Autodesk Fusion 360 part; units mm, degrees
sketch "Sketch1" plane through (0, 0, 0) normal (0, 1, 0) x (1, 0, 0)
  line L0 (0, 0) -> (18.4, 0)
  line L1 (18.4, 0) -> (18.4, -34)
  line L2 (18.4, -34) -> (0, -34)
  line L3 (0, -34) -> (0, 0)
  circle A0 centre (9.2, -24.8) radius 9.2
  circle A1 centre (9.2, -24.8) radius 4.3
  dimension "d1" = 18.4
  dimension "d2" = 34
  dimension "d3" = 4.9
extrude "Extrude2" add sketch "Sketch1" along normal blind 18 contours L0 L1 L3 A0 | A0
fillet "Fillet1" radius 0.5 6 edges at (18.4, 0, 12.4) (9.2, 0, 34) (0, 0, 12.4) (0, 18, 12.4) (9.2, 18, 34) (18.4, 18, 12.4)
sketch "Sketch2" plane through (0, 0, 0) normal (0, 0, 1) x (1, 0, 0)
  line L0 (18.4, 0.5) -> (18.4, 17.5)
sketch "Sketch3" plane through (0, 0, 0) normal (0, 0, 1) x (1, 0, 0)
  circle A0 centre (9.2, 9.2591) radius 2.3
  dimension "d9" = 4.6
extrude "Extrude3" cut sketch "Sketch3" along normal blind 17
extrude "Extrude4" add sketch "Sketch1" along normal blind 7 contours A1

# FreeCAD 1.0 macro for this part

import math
import FreeCAD as App
import Part
import Sketcher

V = App.Vector


def edges_at(feature, points):
    """Names of the edges that pass closest to the given points."""
    edges = feature.Shape.Edges
    near = lambda p: min(range(len(edges)), key=lambda i: edges[i].distToShape(Part.Vertex(*p))[0])
    return sorted({f"Edge{near(p) + 1}" for p in points})

doc = App.newDocument("Part")
body = doc.addObject("PartDesign::Body", "Body")

# Sketch on XZ plane
sketch1 = doc.addObject("Sketcher::SketchObject", "Sketch")
body.addObject(sketch1)
sketch1.AttachmentSupport = (doc.XZ_Plane, [""])
sketch1.MapMode = "FlatFace"
sketch1.addGeometry([
    Part.LineSegment(V(18.4, 0, 0), V(0, 0, 0)),  # 0
    Part.LineSegment(V(0, 0, 0), V(0, 24.8, 0)),  # 1
    Part.ArcOfCircle(Part.Circle(V(9.2, 24.8, 0), V(0, 0, 1), 9.2), math.radians(0), math.radians(180)),  # 2
    Part.LineSegment(V(18.4, 24.8, 0), V(18.4, 0, 0)),  # 3
    Part.Circle(V(9.2, 24.8, 0), V(0, 0, 1), 4.3),  # 4
], False)
sketch1.addConstraint([
    Sketcher.Constraint("Coincident", 0, 2, 1, 1),
    Sketcher.Constraint("Tangent", 1, 2, 2, 2),
    Sketcher.Constraint("Tangent", 2, 1, 3, 1),
    Sketcher.Constraint("Coincident", 3, 2, 0, 1),
    Sketcher.Constraint("Horizontal", 0),
    Sketcher.Constraint("Vertical", 1),
    Sketcher.Constraint("Vertical", 3),
    Sketcher.Constraint("Coincident", 0, 2, -1, 1),
    Sketcher.Constraint("Coincident", 4, 3, 2, 3),
    Sketcher.Constraint("Radius", 2, 9.2),
    Sketcher.Constraint("Diameter", 4, 8.6),
    Sketcher.Constraint("DistanceY", 1, 1, 1, 2, 24.8),
])
pad1 = doc.addObject("PartDesign::Pad", "Pad")
body.addObject(pad1)
pad1.Profile = sketch1
pad1.Length = 18
pad1.Reversed = True
doc.recompute()

fillet = doc.addObject("PartDesign::Fillet", "Fillet")
body.addObject(fillet)
fillet.Base = (pad1, edges_at(pad1, [
    (18.4, 0, 12.4),
    (9.2, 0, 34),
    (0, 0, 12.4),
    (0, 18, 12.4),
    (9.2, 18, 34),
    (18.4, 18, 12.4),
]))
fillet.Radius = 0.5

# Sketch on XY plane
sketch2 = doc.addObject("Sketcher::SketchObject", "Sketch001")
body.addObject(sketch2)
sketch2.AttachmentSupport = (doc.XY_Plane, [""])
sketch2.MapMode = "FlatFace"
sketch2.addGeometry(Part.Circle(V(9.2, 9.2591, 0), V(0, 0, 1), 2.3), False)
sketch2.addConstraint([
    Sketcher.Constraint("Diameter", 0, 4.6),
    Sketcher.Constraint("DistanceX", -1, 1, 0, 3, 9.2),
    Sketcher.Constraint("DistanceY", -1, 1, 0, 3, 9.259),
])
pocket1 = doc.addObject("PartDesign::Pocket", "Pocket")
body.addObject(pocket1)
pocket1.Profile = sketch2
pocket1.Length = 17
pocket1.Reversed = True

# Sketch on XZ plane
sketch3 = doc.addObject("Sketcher::SketchObject", "Sketch002")
body.addObject(sketch3)
sketch3.AttachmentSupport = (doc.XZ_Plane, [""])
sketch3.MapMode = "FlatFace"
sketch3.addGeometry(Part.Circle(V(9.2, 24.8, 0), V(0, 0, 1), 4.3), False)
sketch3.addConstraint([
    Sketcher.Constraint("Diameter", 0, 8.6),
    Sketcher.Constraint("DistanceX", -1, 1, 0, 3, 9.2),
    Sketcher.Constraint("DistanceY", -1, 1, 0, 3, 24.8),
])
pad2 = doc.addObject("PartDesign::Pad", "Pad001")
body.addObject(pad2)
pad2.Profile = sketch3
pad2.Length = 7
pad2.Reversed = True

doc.recompute()
